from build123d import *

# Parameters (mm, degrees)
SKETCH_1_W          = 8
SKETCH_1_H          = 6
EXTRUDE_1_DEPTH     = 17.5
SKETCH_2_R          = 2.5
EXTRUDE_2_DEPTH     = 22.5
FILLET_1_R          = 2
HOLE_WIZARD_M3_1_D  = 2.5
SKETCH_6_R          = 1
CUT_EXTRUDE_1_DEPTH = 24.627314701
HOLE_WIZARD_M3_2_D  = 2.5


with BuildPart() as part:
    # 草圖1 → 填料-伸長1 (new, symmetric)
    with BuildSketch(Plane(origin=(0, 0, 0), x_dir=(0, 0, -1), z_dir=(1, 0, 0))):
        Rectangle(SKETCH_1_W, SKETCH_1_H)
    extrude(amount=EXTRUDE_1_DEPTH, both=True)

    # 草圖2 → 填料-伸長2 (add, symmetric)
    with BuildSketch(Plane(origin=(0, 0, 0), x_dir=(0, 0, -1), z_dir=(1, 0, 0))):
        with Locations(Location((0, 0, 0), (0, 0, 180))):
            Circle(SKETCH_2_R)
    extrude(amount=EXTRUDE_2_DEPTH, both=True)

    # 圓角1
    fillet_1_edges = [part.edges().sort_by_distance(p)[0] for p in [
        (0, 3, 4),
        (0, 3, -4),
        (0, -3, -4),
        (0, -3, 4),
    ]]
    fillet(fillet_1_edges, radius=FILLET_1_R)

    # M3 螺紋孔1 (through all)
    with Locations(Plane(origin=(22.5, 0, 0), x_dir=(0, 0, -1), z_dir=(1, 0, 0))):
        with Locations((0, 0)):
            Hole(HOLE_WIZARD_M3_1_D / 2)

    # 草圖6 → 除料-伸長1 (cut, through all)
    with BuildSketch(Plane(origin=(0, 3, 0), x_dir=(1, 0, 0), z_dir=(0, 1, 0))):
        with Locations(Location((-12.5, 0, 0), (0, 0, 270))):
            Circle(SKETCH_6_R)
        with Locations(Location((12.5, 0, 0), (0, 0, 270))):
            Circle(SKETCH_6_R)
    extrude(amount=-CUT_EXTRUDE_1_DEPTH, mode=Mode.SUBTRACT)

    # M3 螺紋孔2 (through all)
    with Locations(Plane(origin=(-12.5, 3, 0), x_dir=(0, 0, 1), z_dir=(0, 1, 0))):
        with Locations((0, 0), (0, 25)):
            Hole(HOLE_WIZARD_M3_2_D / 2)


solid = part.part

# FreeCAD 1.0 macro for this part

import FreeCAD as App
import Part
import Sketcher


def edges_at(feature, points):
    """Names of the edges that pass closest to the given points."""
    edges = feature.Shape.Edges
    near = lambda p: min(range(len(edges)), key=lambda i: edges[i].distToShape(Part.Vertex(*p))[0])
    return sorted({f"Edge{near(p) + 1}" for p in points})


def add_polygon(sketch, points):
    """Adds a closed chain of lines whose ends are joined by coincident constraints."""
    first, n = sketch.GeometryCount, len(points)
    for a, b in zip(points, points[1:] + points[:1]):
        sketch.addGeometry(Part.LineSegment(App.Vector(*a, 0), App.Vector(*b, 0)), False)
    for i in range(n):
        sketch.addConstraint(Sketcher.Constraint("Coincident", first + i, 2, first + (i + 1) % n, 1))

doc = App.newDocument("Part")
body = doc.addObject("PartDesign::Body", "Body")

# Sketch on YZ plane
sketch1 = body.newObject("Sketcher::SketchObject", "Sketch")
sketch1.AttachmentSupport = (doc.getObject("YZ_Plane"), [""])
sketch1.MapMode = "FlatFace"
add_polygon(sketch1, [(3, 4), (-3, 4), (-3, -4), (3, -4)])  # lines 0-3
sketch1.addConstraint([
    Sketcher.Constraint("Horizontal", 0),
    Sketcher.Constraint("Vertical", 1),
    Sketcher.Constraint("Horizontal", 2),
    Sketcher.Constraint("Vertical", 3),
    Sketcher.Constraint("Symmetric", 0, 2, 2, 2, -1, 1),
    Sketcher.Constraint("DistanceX", 0, 2, 0, 1, 6.0),
    Sketcher.Constraint("DistanceY", 1, 2, 1, 1, 8.0),
])
pad1 = body.newObject("PartDesign::Pad", "Pad")
pad1.Profile = sketch1
pad1.Length = 35
pad1.Midplane = True

# Sketch on YZ plane
sketch2 = body.newObject("Sketcher::SketchObject", "Sketch001")
sketch2.AttachmentSupport = (doc.getObject("YZ_Plane"), [""])
sketch2.MapMode = "FlatFace"
sketch2.addGeometry(Part.Circle(App.Vector(0, 0, 0), App.Vector(0, 0, 1), 2.5), False)
sketch2.addConstraint([
    Sketcher.Constraint("Coincident", 0, 3, -1, 1),
    Sketcher.Constraint("Diameter", 0, 5.0),
])
pad2 = body.newObject("PartDesign::Pad", "Pad001")
pad2.Profile = sketch2
pad2.Length = 45
pad2.Midplane = True
doc.recompute()

fillet = body.newObject("PartDesign::Fillet", "Fillet")
fillet.Base = (pad2, edges_at(pad2, [
    (0, 3, 4),
    (0, 3, -4),
    (0, -3, -4),
    (0, -3, 4),
]))
fillet.Radius = 2

# Sketch on YZ plane
sketch3 = body.newObject("Sketcher::SketchObject", "Sketch002")
sketch3.AttachmentSupport = (doc.getObject("YZ_Plane"), [""])
sketch3.MapMode = "FlatFace"
sketch3.AttachmentOffset = App.Placement(App.Vector(0, 0, 22.5), App.Rotation())
sketch3.addGeometry(Part.Circle(App.Vector(0, 0, 0), App.Vector(0, 0, 1), 1.25), False)
sketch3.addConstraint([
    Sketcher.Constraint("Coincident", 0, 3, -1, 1),
    Sketcher.Constraint("Diameter", 0, 2.5),
])
doc.recompute()
hole = body.newObject("PartDesign::Hole", "Hole")
hole.Profile = sketch3
hole.ThreadType = "None"
hole.Diameter = 2.5
hole.DepthType = "ThroughAll"

# Sketch on XZ plane
sketch4 = body.newObject("Sketcher::SketchObject", "Sketch003")
sketch4.AttachmentSupport = (doc.getObject("XZ_Plane"), [""])
sketch4.MapMode = "FlatFace"
sketch4.AttachmentOffset = App.Placement(App.Vector(0, 0, -3), App.Rotation())
sketch4.addGeometry([
    Part.Circle(App.Vector(-12.5, 0, 0), App.Vector(0, 0, 1), 1),
    Part.Circle(App.Vector(12.5, 0, 0), App.Vector(0, 0, 1), 1),
], False)
sketch4.addConstraint([
    Sketcher.Constraint("Equal", 0, 1),
    Sketcher.Constraint("Symmetric", 0, 3, 1, 3, -1, 1),
    Sketcher.Constraint("PointOnObject", 0, 3, -1),
    Sketcher.Constraint("Diameter", 0, 2.0),
    Sketcher.Constraint("DistanceX", 0, 3, 1, 3, 25.0),
])
pocket1 = body.newObject("PartDesign::Pocket", "Pocket")
pocket1.Profile = sketch4
pocket1.Type = "ThroughAll"
pocket1.Reversed = True

# Sketch on XZ plane
sketch5 = body.newObject("Sketcher::SketchObject", "Sketch004")
sketch5.AttachmentSupport = (doc.getObject("XZ_Plane"), [""])
sketch5.MapMode = "FlatFace"
sketch5.AttachmentOffset = App.Placement(App.Vector(0, 0, -3), App.Rotation())
sketch5.addGeometry([
    Part.Circle(App.Vector(-12.5, 0, 0), App.Vector(0, 0, 1), 1.25),
    Part.Circle(App.Vector(12.5, 0, 0), App.Vector(0, 0, 1), 1.25),
], False)
sketch5.addConstraint([
    Sketcher.Constraint("Equal", 0, 1),
    Sketcher.Constraint("Symmetric", 0, 3, 1, 3, -1, 1),
    Sketcher.Constraint("PointOnObject", 0, 3, -1),
    Sketcher.Constraint("Diameter", 0, 2.5),
    Sketcher.Constraint("DistanceX", 0, 3, 1, 3, 25.0),
])
doc.recompute()
hole2 = body.newObject("PartDesign::Hole", "Hole001")
hole2.Profile = sketch5
hole2.ThreadType = "None"
hole2.Diameter = 2.5
hole2.DepthType = "ThroughAll"
hole2.Reversed = True

doc.recompute()
